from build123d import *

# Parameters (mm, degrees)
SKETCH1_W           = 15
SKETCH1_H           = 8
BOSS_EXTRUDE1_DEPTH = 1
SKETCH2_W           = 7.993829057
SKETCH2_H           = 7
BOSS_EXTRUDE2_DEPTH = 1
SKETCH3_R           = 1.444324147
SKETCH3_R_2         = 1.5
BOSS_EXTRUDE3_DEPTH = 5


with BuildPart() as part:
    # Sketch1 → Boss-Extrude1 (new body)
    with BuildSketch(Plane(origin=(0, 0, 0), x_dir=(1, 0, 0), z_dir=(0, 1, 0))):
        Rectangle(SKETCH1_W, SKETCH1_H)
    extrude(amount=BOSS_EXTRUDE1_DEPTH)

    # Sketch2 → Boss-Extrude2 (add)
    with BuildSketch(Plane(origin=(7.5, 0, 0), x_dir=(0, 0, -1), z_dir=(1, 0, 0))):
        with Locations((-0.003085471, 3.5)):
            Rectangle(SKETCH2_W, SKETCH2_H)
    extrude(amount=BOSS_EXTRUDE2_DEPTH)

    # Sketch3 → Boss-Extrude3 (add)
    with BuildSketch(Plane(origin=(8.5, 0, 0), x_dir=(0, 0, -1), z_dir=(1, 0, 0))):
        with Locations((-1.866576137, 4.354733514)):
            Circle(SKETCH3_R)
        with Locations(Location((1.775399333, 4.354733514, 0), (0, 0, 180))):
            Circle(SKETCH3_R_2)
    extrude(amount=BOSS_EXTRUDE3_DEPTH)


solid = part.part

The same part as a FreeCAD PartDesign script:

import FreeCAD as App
import Part
import Sketcher


def add_polygon(sketch, points):
    """Adds a closed chain of lines whose ends are joined by coincident constraints."""
    first, n = sketch.GeometryCount, len(points)
    for a, b in zip(points, points[1:] + points[:1]):
        sketch.addGeometry(Part.LineSegment(App.Vector(*a, 0), App.Vector(*b, 0)), False)
    for i in range(n):
        sketch.addConstraint(Sketcher.Constraint("Coincident", first + i, 2, first + (i + 1) % n, 1))

doc = App.newDocument("Part")
params = doc.addObject("Spreadsheet::Sheet", "Params")
for row, (alias, value) in enumerate([
    ("sketch1_width", "15 mm"),
    ("sketch1_height", "8 mm"),
    ("pad1_length", "1 mm"),
    ("sketch2_width", "7 mm"),
    ("pad2_length", "1 mm"),
    ("sketch3_diameter", "3 mm"),
    ("pad3_length", "5 mm"),
], start=1):
    params.set(f"A{row}", alias)
    params.set(f"B{row}", "=" + value)
    params.setAlias(f"B{row}", alias)

body = doc.addObject("PartDesign::Body", "Body")

# Sketch on XZ plane
sketch1 = doc.addObject("Sketcher::SketchObject", "Sketch")
body.addObject(sketch1)
sketch1.AttachmentSupport = (doc.XZ_Plane, [""])
sketch1.MapMode = "FlatFace"
add_polygon(sketch1, [(-8, -4), (-8, 4), (8, 4), (8, -4)])  # lines 0-3
sketch1.addConstraint([
    Sketcher.Constraint("Vertical", 0),
    Sketcher.Constraint("Horizontal", 1),
    Sketcher.Constraint("Vertical", 2),
    Sketcher.Constraint("Horizontal", 3),
    Sketcher.Constraint("Symmetric", 0, 2, 2, 2, -1, 1),
    Sketcher.Constraint("DistanceX", 1, 1, 1, 2, 15.0),
    Sketcher.Constraint("DistanceY", 0, 1, 0, 2, 8.0),
])
sketch1.setExpression("Constraints[9]", "Params.sketch1_width")
sketch1.setExpression("Constraints[10]", "Params.sketch1_height")
pad1 = doc.addObject("PartDesign::Pad", "Pad")
body.addObject(pad1)
pad1.Profile = sketch1
pad1.setExpression("Length", "Params.pad1_length")
pad1.Reversed = True

# Sketch on YZ plane
sketch2 = doc.addObject("Sketcher::SketchObject", "Sketch001")
body.addObject(sketch2)
sketch2.AttachmentSupport = (doc.YZ_Plane, [""])
sketch2.MapMode = "FlatFace"
sketch2.AttachmentOffset = App.Placement(App.Vector(0, 0, 7.5), App.Rotation())
add_polygon(sketch2, [(7, 4), (0, 4), (0, -4), (7, -4)])  # lines 0-3
sketch2.addConstraint([
    Sketcher.Constraint("Horizontal", 0),
    Sketcher.Constraint("Vertical", 1),
    Sketcher.Constraint("Horizontal", 2),
    Sketcher.Constraint("Vertical", 3),
    Sketcher.Constraint("PointOnObject", 0, 2, -2),
    Sketcher.Constraint("DistanceX", 0, 2, 0, 1, 7.0),
    Sketcher.Constraint("DistanceY", -1, 1, 0, 2, 4.0),
    Sketcher.Constraint("DistanceY", 1, 2, 1, 1, 7.993829),
])
sketch2.setExpression("Constraints[9]", "Params.sketch2_width")
pad2 = doc.addObject("PartDesign::Pad", "Pad001")
body.addObject(pad2)
pad2.Profile = sketch2
pad2.setExpression("Length", "Params.pad2_length")

# Sketch on YZ plane
sketch3 = doc.addObject("Sketcher::SketchObject", "Sketch002")
body.addObject(sketch3)
sketch3.AttachmentSupport = (doc.YZ_Plane, [""])
sketch3.MapMode = "FlatFace"
sketch3.AttachmentOffset = App.Placement(App.Vector(0, 0, 8.5), App.Rotation())
sketch3.addGeometry([
    Part.Circle(App.Vector(4.4, 1.9, 0), App.Vector(0, 0, 1), 1.4),
    Part.Circle(App.Vector(4.4, -1.8, 0), App.Vector(0, 0, 1), 1.5),
], False)
sketch3.addConstraint([
    Sketcher.Constraint("Vertical", 0, 3, 1, 3),
    Sketcher.Constraint("Diameter", 1, 3.0),
    Sketcher.Constraint("Diameter", 0, 2.888648),
    Sketcher.Constraint("DistanceY", 1, 3, -1, 1, 1.775399),
    Sketcher.Constraint("DistanceX", -1, 1, 0, 3, 4.354734),
    Sketcher.Constraint("DistanceY", -1, 1, 0, 3, 1.866576),
])
sketch3.setExpression("Constraints[1]", "Params.sketch3_diameter")
pad3 = doc.addObject("PartDesign::Pad", "Pad002")
body.addObject(pad3)
pad3.Profile = sketch3
pad3.setExpression("Length", "Params.pad3_length")

doc.recompute()
